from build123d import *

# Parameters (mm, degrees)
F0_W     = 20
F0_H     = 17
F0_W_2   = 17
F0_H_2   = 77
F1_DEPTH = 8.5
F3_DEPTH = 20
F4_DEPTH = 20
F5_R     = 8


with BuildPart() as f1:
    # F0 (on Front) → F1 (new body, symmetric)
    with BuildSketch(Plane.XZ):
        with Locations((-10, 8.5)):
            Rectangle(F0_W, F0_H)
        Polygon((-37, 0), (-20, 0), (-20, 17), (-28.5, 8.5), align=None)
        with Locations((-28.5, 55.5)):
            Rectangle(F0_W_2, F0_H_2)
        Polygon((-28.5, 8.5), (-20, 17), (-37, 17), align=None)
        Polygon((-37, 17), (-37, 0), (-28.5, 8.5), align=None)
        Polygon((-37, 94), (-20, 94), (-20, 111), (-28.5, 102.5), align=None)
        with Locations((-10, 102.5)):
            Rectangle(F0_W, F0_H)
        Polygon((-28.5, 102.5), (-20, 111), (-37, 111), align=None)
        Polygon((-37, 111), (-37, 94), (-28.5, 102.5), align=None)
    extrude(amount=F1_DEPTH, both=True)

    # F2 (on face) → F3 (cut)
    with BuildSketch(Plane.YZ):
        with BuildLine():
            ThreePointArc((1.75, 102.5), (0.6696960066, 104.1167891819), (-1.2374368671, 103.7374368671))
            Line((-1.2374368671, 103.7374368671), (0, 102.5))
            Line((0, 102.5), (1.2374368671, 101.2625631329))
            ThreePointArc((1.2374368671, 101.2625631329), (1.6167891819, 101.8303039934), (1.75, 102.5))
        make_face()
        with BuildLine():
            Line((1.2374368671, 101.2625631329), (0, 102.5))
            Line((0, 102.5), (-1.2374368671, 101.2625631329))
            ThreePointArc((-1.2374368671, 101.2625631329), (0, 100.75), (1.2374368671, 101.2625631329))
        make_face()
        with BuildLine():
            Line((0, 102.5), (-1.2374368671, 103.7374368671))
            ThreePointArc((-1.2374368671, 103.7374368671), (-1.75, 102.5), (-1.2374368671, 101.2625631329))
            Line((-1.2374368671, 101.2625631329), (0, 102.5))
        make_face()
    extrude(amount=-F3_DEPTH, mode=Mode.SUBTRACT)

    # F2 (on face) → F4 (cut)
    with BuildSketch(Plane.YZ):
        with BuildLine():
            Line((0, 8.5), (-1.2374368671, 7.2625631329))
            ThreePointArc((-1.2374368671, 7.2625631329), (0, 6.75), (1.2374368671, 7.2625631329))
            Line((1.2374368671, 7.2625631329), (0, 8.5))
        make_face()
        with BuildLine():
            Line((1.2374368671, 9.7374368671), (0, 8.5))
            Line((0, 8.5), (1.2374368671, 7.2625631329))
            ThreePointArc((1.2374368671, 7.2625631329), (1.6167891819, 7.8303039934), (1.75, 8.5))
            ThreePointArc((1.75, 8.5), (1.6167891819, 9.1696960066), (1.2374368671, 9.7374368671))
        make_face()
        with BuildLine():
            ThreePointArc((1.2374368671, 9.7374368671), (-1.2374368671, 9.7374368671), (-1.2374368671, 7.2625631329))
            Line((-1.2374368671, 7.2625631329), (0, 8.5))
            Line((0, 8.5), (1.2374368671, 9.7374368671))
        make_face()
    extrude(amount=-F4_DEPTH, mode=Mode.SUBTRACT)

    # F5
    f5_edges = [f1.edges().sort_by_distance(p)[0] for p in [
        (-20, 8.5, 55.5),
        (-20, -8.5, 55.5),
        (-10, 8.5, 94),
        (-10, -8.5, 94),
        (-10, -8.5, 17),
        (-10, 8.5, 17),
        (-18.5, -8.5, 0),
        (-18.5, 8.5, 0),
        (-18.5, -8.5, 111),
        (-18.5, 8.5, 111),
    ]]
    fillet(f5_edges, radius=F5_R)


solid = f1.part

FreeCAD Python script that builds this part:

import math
import FreeCAD as App
import Part
import Sketcher
from FreeCAD import Vector


def edges_at(feature, points):
    """Names of the edges that pass closest to the given points."""
    edges = feature.Shape.Edges
    near = lambda p: min(range(len(edges)), key=lambda i: edges[i].distToShape(Part.Vertex(*p))[0])
    return sorted({f"Edge{near(p) + 1}" for p in points})


def add_polygon(sketch, points):
    """Adds a closed chain of lines whose ends are joined by coincident constraints."""
    first, n = sketch.GeometryCount, len(points)
    for a, b in zip(points, points[1:] + points[:1]):
        sketch.addGeometry(Part.LineSegment(App.Vector(*a, 0), App.Vector(*b, 0)), False)
    for i in range(n):
        sketch.addConstraint(Sketcher.Constraint("Coincident", first + i, 2, first + (i + 1) % n, 1))

doc = App.newDocument("Part")
body = doc.addObject("PartDesign::Body", "Body")

# Sketch on XZ plane
sketch1 = body.newObject("Sketcher::SketchObject", "Sketch")
sketch1.AttachmentSupport = (doc.getObject("XZ_Plane"), [""])
sketch1.MapMode = "FlatFace"
add_polygon(sketch1, [(0, 0), (0, 17), (-20, 17), (-20, 94), (0, 94), (0, 111), (-37, 111), (-37, 0)])  # lines 0-7
sketch1.addConstraint([
    Sketcher.Constraint("Vertical", 0),
    Sketcher.Constraint("Horizontal", 1),
    Sketcher.Constraint("Vertical", 2),
    Sketcher.Constraint("Horizontal", 3),
    Sketcher.Constraint("Vertical", 4),
    Sketcher.Constraint("Horizontal", 5),
    Sketcher.Constraint("Vertical", 6),
    Sketcher.Constraint("Horizontal", 7),
    Sketcher.Constraint("Coincident", 7, 2, -1, 1),
    Sketcher.Constraint("PointOnObject", 3, 2, -2),
    Sketcher.Constraint("Equal", 0, 4),
    Sketcher.Constraint("DistanceX", 1, 2, 1, 1, 20.0),
    Sketcher.Constraint("DistanceX", 5, 2, 5, 1, 37.0),
    Sketcher.Constraint("DistanceY", 0, 1, 0, 2, 17.0),
    Sketcher.Constraint("DistanceY", 2, 1, 2, 2, 77.0),
])
pad1 = body.newObject("PartDesign::Pad", "Pad")
pad1.Profile = sketch1
pad1.Length = 17
pad1.Midplane = True

# Sketch on YZ plane
sketch2 = body.newObject("Sketcher::SketchObject", "Sketch001")
sketch2.AttachmentSupport = (doc.getObject("YZ_Plane"), [""])
sketch2.MapMode = "FlatFace"
sketch2.addGeometry([
    Part.ArcOfCircle(Part.Circle(Vector(0, 102.5, 0), Vector(0, 0, 1), 1.8), math.radians(0), math.radians(135)),
    Part.ArcOfCircle(Part.Circle(Vector(0, 102.5, 0), Vector(0, 0, 1), 1.8), math.radians(135), math.radians(225)),
    Part.ArcOfCircle(Part.Circle(Vector(0, 102.5, 0), Vector(0, 0, 1), 1.8), math.radians(-135), math.radians(-45)),
    Part.ArcOfCircle(Part.Circle(Vector(0, 102.5, 0), Vector(0, 0, 1), 1.8), math.radians(-45), math.radians(0)),
], False)
sketch2.addConstraint([
    Sketcher.Constraint("Tangent", 0, 2, 1, 1),
    Sketcher.Constraint("Tangent", 1, 2, 2, 1),
    Sketcher.Constraint("Tangent", 2, 2, 3, 1),
    Sketcher.Constraint("Tangent", 3, 2, 0, 1),
    Sketcher.Constraint("Equal", 0, 1),
    Sketcher.Constraint("Symmetric", 1, 2, 2, 2, -2),
    Sketcher.Constraint("Horizontal", 2, 3, 3, 2),
    Sketcher.Constraint("Vertical", 0, 2, 1, 2),
    Sketcher.Constraint("Radius", 0, 1.75),
    Sketcher.Constraint("DistanceY", -1, 1, 0, 3, 102.5),
    Sketcher.Constraint("DistanceX", 0, 2, -1, 1, 1.237437),
])
pocket1 = body.newObject("PartDesign::Pocket", "Pocket")
pocket1.Profile = sketch2
pocket1.Length = 20

# Sketch on YZ plane
sketch3 = body.newObject("Sketcher::SketchObject", "Sketch002")
sketch3.AttachmentSupport = (doc.getObject("YZ_Plane"), [""])
sketch3.MapMode = "FlatFace"
sketch3.addGeometry([
    Part.ArcOfCircle(Part.Circle(Vector(0, 8.5, 0), Vector(0, 0, 1), 1.8), math.radians(-135), math.radians(-45)),
    Part.ArcOfCircle(Part.Circle(Vector(0, 8.5, 0), Vector(0, 0, 1), 1.8), math.radians(-45), math.radians(0)),
    Part.ArcOfCircle(Part.Circle(Vector(0, 8.5, 0), Vector(0, 0, 1), 1.8), math.radians(0), math.radians(45)),
    Part.ArcOfCircle(Part.Circle(Vector(0, 8.5, 0), Vector(0, 0, 1), 1.8), math.radians(45), math.radians(225)),
], False)
sketch3.addConstraint([
    Sketcher.Constraint("Tangent", 0, 2, 1, 1),
    Sketcher.Constraint("Tangent", 1, 2, 2, 1),
    Sketcher.Constraint("Tangent", 2, 2, 3, 1),
    Sketcher.Constraint("Tangent", 3, 2, 0, 1),
    Sketcher.Constraint("Equal", 0, 1),
    Sketcher.Constraint("Symmetric", 0, 2, 3, 2, -2),
    Sketcher.Constraint("Horizontal", 3, 3, 1, 2),
    Sketcher.Constraint("Vertical", 0, 2, 2, 2),
    Sketcher.Constraint("Radius", 0, 1.75),
    Sketcher.Constraint("DistanceY", -1, 1, 0, 3, 8.5),
    Sketcher.Constraint("DistanceX", -1, 1, 0, 2, 1.237437),
])
pocket2 = body.newObject("PartDesign::Pocket", "Pocket001")
pocket2.Profile = sketch3
pocket2.Length = 20
doc.recompute()

fillet = body.newObject("PartDesign::Fillet", "Fillet")
fillet.Base = (pocket2, edges_at(pocket2, [
    (-20, 8.5, 55.5),
    (-20, -8.5, 55.5),
    (-10, 8.5, 94),
    (-10, -8.5, 94),
    (-10, -8.5, 17),
    (-10, 8.5, 17),
    (-18.5, -8.5, 0),
    (-18.5, 8.5, 0),
    (-18.5, -8.5, 111),
    (-18.5, 8.5, 111),
]))
fillet.Radius = 8

doc.recompute()
